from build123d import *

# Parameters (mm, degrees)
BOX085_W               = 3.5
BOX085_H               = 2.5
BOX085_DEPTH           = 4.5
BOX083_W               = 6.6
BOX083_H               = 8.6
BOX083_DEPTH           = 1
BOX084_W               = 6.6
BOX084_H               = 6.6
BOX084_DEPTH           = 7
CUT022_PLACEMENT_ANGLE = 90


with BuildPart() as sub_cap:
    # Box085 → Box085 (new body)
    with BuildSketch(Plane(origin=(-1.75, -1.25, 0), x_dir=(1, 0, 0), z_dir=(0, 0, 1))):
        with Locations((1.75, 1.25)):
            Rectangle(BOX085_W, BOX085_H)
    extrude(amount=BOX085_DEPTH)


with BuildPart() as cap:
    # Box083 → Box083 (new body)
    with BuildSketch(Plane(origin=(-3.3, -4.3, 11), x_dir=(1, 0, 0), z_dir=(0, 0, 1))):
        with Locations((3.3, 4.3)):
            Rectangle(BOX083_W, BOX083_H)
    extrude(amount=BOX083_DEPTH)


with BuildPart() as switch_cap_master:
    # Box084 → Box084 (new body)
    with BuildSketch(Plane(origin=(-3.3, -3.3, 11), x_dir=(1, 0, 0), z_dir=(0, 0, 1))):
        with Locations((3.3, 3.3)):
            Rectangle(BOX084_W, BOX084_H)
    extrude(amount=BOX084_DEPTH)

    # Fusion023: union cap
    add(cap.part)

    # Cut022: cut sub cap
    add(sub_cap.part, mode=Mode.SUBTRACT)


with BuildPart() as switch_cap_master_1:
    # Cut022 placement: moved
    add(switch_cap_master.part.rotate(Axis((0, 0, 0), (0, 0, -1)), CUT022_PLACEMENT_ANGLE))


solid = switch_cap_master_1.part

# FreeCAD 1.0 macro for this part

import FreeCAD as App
import Part
import Sketcher

V = App.Vector

doc = App.newDocument("Part")
body = doc.addObject("PartDesign::Body", "Body")

# Sketch on XY plane
sketch1 = body.newObject("Sketcher::SketchObject", "Sketch")
sketch1.AttachmentSupport = (doc.getObject("XY_Plane"), [""])
sketch1.MapMode = "FlatFace"
sketch1.addGeometry(Part.LineSegment(V(-1.8, 1.2, 0), V(-1.8, -1.2, 0)), False)
sketch1.addGeometry(Part.LineSegment(V(-1.8, -1.2, 0), V(1.8, -1.2, 0)), False)
sketch1.addGeometry(Part.LineSegment(V(1.8, -1.2, 0), V(1.8, 1.2, 0)), False)
sketch1.addGeometry(Part.LineSegment(V(1.8, 1.2, 0), V(-1.8, 1.2, 0)), False)
sketch1.addConstraint(Sketcher.Constraint("Coincident", 0, 2, 1, 1))
sketch1.addConstraint(Sketcher.Constraint("Coincident", 1, 2, 2, 1))
sketch1.addConstraint(Sketcher.Constraint("Coincident", 2, 2, 3, 1))
sketch1.addConstraint(Sketcher.Constraint("Coincident", 3, 2, 0, 1))
sketch1.addConstraint(Sketcher.Constraint("Vertical", 0))
sketch1.addConstraint(Sketcher.Constraint("Horizontal", 1))
sketch1.addConstraint(Sketcher.Constraint("Vertical", 2))
sketch1.addConstraint(Sketcher.Constraint("Horizontal", 3))
sketch1.addConstraint(Sketcher.Constraint("Symmetric", 0, 2, 2, 2, -1, 1))
sketch1.addConstraint(Sketcher.Constraint("DistanceX", 1, 1, 1, 2, 3.5))
sketch1.addConstraint(Sketcher.Constraint("DistanceY", 0, 2, 0, 1, 2.5))
pad1 = body.newObject("PartDesign::Pad", "Pad")
pad1.Profile = sketch1
pad1.Length = 4.5
body2 = doc.addObject("PartDesign::Body", "Body001")

# Sketch on XY plane
sketch2 = body2.newObject("Sketcher::SketchObject", "Sketch001")
sketch2.AttachmentSupport = (doc.getObject("XY_Plane001"), [""])
sketch2.MapMode = "FlatFace"
sketch2.AttachmentOffset = App.Placement(V(0, 0, 11), App.Rotation())
sketch2.addGeometry(Part.LineSegment(V(-3, 4, 0), V(-3, -4, 0)), False)
sketch2.addGeometry(Part.LineSegment(V(-3, -4, 0), V(3, -4, 0)), False)
sketch2.addGeometry(Part.LineSegment(V(3, -4, 0), V(3, 4, 0)), False)
sketch2.addGeometry(Part.LineSegment(V(3, 4, 0), V(-3, 4, 0)), False)
sketch2.addConstraint(Sketcher.Constraint("Coincident", 0, 2, 1, 1))
sketch2.addConstraint(Sketcher.Constraint("Coincident", 1, 2, 2, 1))
sketch2.addConstraint(Sketcher.Constraint("Coincident", 2, 2, 3, 1))
sketch2.addConstraint(Sketcher.Constraint("Coincident", 3, 2, 0, 1))
sketch2.addConstraint(Sketcher.Constraint("Vertical", 0))
sketch2.addConstraint(Sketcher.Constraint("Horizontal", 1))
sketch2.addConstraint(Sketcher.Constraint("Vertical", 2))
sketch2.addConstraint(Sketcher.Constraint("Horizontal", 3))
sketch2.addConstraint(Sketcher.Constraint("Symmetric", 0, 2, 2, 2, -1, 1))
sketch2.addConstraint(Sketcher.Constraint("DistanceX", 1, 1, 1, 2, 6.6))
sketch2.addConstraint(Sketcher.Constraint("DistanceY", 0, 2, 0, 1, 8.6))
pad2 = body2.newObject("PartDesign::Pad", "Pad001")
pad2.Profile = sketch2
pad2.Length = 1
body3 = doc.addObject("PartDesign::Body", "Body002")

# Sketch on XY plane
sketch3 = body3.newObject("Sketcher::SketchObject", "Sketch002")
sketch3.AttachmentSupport = (doc.getObject("XY_Plane002"), [""])
sketch3.MapMode = "FlatFace"
sketch3.AttachmentOffset = App.Placement(V(0, 0, 11), App.Rotation())
sketch3.addGeometry(Part.LineSegment(V(-3, 3, 0), V(-3, -3, 0)), False)
sketch3.addGeometry(Part.LineSegment(V(-3, -3, 0), V(3, -3, 0)), False)
sketch3.addGeometry(Part.LineSegment(V(3, -3, 0), V(3, 3, 0)), False)
sketch3.addGeometry(Part.LineSegment(V(3, 3, 0), V(-3, 3, 0)), False)
sketch3.addConstraint(Sketcher.Constraint("Coincident", 0, 2, 1, 1))
sketch3.addConstraint(Sketcher.Constraint("Coincident", 1, 2, 2, 1))
sketch3.addConstraint(Sketcher.Constraint("Coincident", 2, 2, 3, 1))
sketch3.addConstraint(Sketcher.Constraint("Coincident", 3, 2, 0, 1))
sketch3.addConstraint(Sketcher.Constraint("Vertical", 0))
sketch3.addConstraint(Sketcher.Constraint("Horizontal", 1))
sketch3.addConstraint(Sketcher.Constraint("Vertical", 2))
sketch3.addConstraint(Sketcher.Constraint("Horizontal", 3))
sketch3.addConstraint(Sketcher.Constraint("Symmetric", 0, 2, 2, 2, -1, 1))
sketch3.addConstraint(Sketcher.Constraint("Equal", 3, 0))
sketch3.addConstraint(Sketcher.Constraint("DistanceX", 1, 1, 1, 2, 6.6))
pad3 = body3.newObject("PartDesign::Pad", "Pad002")
pad3.Profile = sketch3
pad3.Length = 7
doc.recompute()

boolean = body3.newObject("PartDesign::Boolean", "Boolean")
boolean.Type = "Fuse"
boolean.addObjects([body2])
doc.recompute()

boolean2 = body3.newObject("PartDesign::Boolean", "Boolean001")
boolean2.Type = "Cut"
boolean2.addObjects([body])
body4 = doc.addObject("PartDesign::Body", "Body003")
doc.recompute()

body3.Placement = App.Placement(V(0, 0, 0), App.Rotation(V(0, 0, -1), 90))
boolean3 = body4.newObject("PartDesign::Boolean", "Boolean002")
boolean3.Type = "Fuse"
boolean3.addObjects([body3])

doc.recompute()
